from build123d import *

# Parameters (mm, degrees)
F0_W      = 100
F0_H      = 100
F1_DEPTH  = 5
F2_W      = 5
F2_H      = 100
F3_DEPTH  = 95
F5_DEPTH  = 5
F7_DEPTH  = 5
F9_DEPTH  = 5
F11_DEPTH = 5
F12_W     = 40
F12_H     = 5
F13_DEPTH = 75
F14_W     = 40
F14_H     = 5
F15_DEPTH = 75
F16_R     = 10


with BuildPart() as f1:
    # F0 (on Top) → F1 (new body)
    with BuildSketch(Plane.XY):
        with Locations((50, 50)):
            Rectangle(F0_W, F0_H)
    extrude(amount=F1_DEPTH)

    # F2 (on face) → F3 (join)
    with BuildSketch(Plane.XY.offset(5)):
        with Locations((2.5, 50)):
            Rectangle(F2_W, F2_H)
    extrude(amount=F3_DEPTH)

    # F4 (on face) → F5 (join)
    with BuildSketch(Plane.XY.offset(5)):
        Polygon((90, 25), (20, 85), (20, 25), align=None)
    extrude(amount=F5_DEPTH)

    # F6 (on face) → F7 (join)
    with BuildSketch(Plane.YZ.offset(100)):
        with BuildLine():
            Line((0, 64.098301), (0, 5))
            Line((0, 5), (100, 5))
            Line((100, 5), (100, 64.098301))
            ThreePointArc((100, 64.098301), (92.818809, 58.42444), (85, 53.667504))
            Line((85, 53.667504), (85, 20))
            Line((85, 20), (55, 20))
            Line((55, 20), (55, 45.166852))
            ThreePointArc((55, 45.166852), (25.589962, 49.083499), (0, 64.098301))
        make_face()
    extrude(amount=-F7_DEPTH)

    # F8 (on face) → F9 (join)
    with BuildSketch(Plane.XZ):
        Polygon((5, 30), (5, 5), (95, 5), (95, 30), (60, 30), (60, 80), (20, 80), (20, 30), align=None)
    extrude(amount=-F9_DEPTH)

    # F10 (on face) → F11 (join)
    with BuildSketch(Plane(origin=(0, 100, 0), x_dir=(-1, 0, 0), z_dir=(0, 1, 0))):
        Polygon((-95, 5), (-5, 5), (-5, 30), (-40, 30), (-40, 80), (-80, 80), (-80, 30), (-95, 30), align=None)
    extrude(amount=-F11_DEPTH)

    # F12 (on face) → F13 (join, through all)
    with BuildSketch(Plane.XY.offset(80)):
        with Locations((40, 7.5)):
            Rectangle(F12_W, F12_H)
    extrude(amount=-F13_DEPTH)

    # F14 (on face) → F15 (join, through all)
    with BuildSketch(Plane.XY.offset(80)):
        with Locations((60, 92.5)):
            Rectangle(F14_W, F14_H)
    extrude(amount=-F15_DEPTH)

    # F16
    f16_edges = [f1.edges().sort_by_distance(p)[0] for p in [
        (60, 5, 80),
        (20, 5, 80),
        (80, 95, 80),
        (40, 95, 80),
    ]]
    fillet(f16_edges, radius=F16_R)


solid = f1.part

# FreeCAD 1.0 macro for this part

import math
import FreeCAD as App
import Part
import Sketcher


def edges_at(feature, points):
    """Names of the edges that pass closest to the given points."""
    edges = feature.Shape.Edges
    near = lambda p: min(range(len(edges)), key=lambda i: edges[i].distToShape(Part.Vertex(*p))[0])
    return sorted({f"Edge{near(p) + 1}" for p in points})


def add_polygon(sketch, points):
    """Adds a closed chain of lines whose ends are joined by coincident constraints."""
    first, n = sketch.GeometryCount, len(points)
    for a, b in zip(points, points[1:] + points[:1]):
        sketch.addGeometry(Part.LineSegment(App.Vector(*a, 0), App.Vector(*b, 0)), False)
    for i in range(n):
        sketch.addConstraint(Sketcher.Constraint("Coincident", first + i, 2, first + (i + 1) % n, 1))

doc = App.newDocument("Part")
body = doc.addObject("PartDesign::Body", "Body")

# Sketch on XY plane
sketch1 = body.newObject("Sketcher::SketchObject", "Sketch")
sketch1.AttachmentSupport = (doc.getObject("XY_Plane"), [""])
sketch1.MapMode = "FlatFace"
add_polygon(sketch1, [(0, 100), (0, 0), (100, 0), (100, 100)])  # lines 0-3
sketch1.addConstraint([
    Sketcher.Constraint("Vertical", 0),
    Sketcher.Constraint("Horizontal", 1),
    Sketcher.Constraint("Vertical", 2),
    Sketcher.Constraint("Horizontal", 3),
    Sketcher.Constraint("Coincident", 0, 2, -1, 1),
    Sketcher.Constraint("Equal", 3, 0),
    Sketcher.Constraint("DistanceX", 1, 1, 1, 2, 100.0),
])
pad1 = body.newObject("PartDesign::Pad", "Pad")
pad1.Profile = sketch1
pad1.Length = 5

# Sketch on XY plane
sketch2 = body.newObject("Sketcher::SketchObject", "Sketch001")
sketch2.AttachmentSupport = (doc.getObject("XY_Plane"), [""])
sketch2.MapMode = "FlatFace"
sketch2.AttachmentOffset = App.Placement(App.Vector(0, 0, 5), App.Rotation())
add_polygon(sketch2, [(0, 100), (0, 0), (5, 0), (5, 100)])  # lines 0-3
sketch2.addConstraint([
    Sketcher.Constraint("Vertical", 0),
    Sketcher.Constraint("Horizontal", 1),
    Sketcher.Constraint("Vertical", 2),
    Sketcher.Constraint("Horizontal", 3),
    Sketcher.Constraint("Coincident", 0, 2, -1, 1),
    Sketcher.Constraint("DistanceX", 1, 1, 1, 2, 5.0),
    Sketcher.Constraint("DistanceY", 0, 2, 0, 1, 100.0),
])
pad2 = body.newObject("PartDesign::Pad", "Pad001")
pad2.Profile = sketch2
pad2.Length = 95

# Sketch on XY plane
sketch3 = body.newObject("Sketcher::SketchObject", "Sketch002")
sketch3.AttachmentSupport = (doc.getObject("XY_Plane"), [""])
sketch3.MapMode = "FlatFace"
sketch3.AttachmentOffset = App.Placement(App.Vector(0, 0, 5), App.Rotation())
add_polygon(sketch3, [(90, 25), (20, 85), (20, 25)])  # lines 0-2
sketch3.addConstraint([
    Sketcher.Constraint("Vertical", 1),
    Sketcher.Constraint("Horizontal", 2),
    Sketcher.Constraint("DistanceX", 2, 1, 2, 2, 70.0),
    Sketcher.Constraint("DistanceY", 1, 2, 1, 1, 60.0),
    Sketcher.Constraint("DistanceX", -1, 1, 0, 2, 20.0),
    Sketcher.Constraint("DistanceY", -1, 1, 0, 2, 85.0),
])
pad3 = body.newObject("PartDesign::Pad", "Pad002")
pad3.Profile = sketch3
pad3.Length = 5

# Sketch on YZ plane
sketch4 = body.newObject("Sketcher::SketchObject", "Sketch003")
sketch4.AttachmentSupport = (doc.getObject("YZ_Plane"), [""])
sketch4.MapMode = "FlatFace"
sketch4.AttachmentOffset = App.Placement(App.Vector(0, 0, 100), App.Rotation())
sketch4.addGeometry([
    Part.LineSegment(App.Vector(0, 64, 0), App.Vector(0, 5, 0)),  # 0
    Part.LineSegment(App.Vector(0, 5, 0), App.Vector(100, 5, 0)),  # 1
    Part.LineSegment(App.Vector(100, 5, 0), App.Vector(100, 64, 0)),  # 2
    Part.ArcOfCircle(Part.Circle(App.Vector(50, 120, 0), App.Vector(0, 0, 1), 75), math.radians(-62.18), math.radians(-48.19)),  # 3
    Part.LineSegment(App.Vector(85, 54, 0), App.Vector(85, 20, 0)),  # 4
    Part.LineSegment(App.Vector(85, 20, 0), App.Vector(55, 20, 0)),  # 5
    Part.LineSegment(App.Vector(55, 20, 0), App.Vector(55, 45, 0)),  # 6
    Part.ArcOfCircle(Part.Circle(App.Vector(50, 120, 0), App.Vector(0, 0, 1), 75), math.radians(-132), math.radians(-86)),  # 7
], False)
sketch4.addConstraint([
    Sketcher.Constraint("Coincident", 0, 2, 1, 1),
    Sketcher.Constraint("Coincident", 1, 2, 2, 1),
    Sketcher.Constraint("Coincident", 2, 2, 3, 2),
    Sketcher.Constraint("Coincident", 3, 1, 4, 1),
    Sketcher.Constraint("Coincident", 4, 2, 5, 1),
    Sketcher.Constraint("Coincident", 5, 2, 6, 1),
    Sketcher.Constraint("Coincident", 6, 2, 7, 2),
    Sketcher.Constraint("Coincident", 7, 1, 0, 1),
    Sketcher.Constraint("Vertical", 0),
    Sketcher.Constraint("Horizontal", 1),
    Sketcher.Constraint("Vertical", 2),
    Sketcher.Constraint("Vertical", 4),
    Sketcher.Constraint("Horizontal", 5),
    Sketcher.Constraint("Vertical", 6),
    Sketcher.Constraint("Coincident", 7, 3, 3, 3),
    Sketcher.Constraint("Equal", 3, 7),
    Sketcher.Constraint("PointOnObject", 0, 2, -2),
    Sketcher.Constraint("Horizontal", 2, 2, 7, 1),
    Sketcher.Constraint("DistanceX", 1, 1, 1, 2, 100.0),
    Sketcher.Constraint("DistanceX", 5, 2, 5, 1, 30.0),
    Sketcher.Constraint("DistanceY", -1, 1, 0, 2, 5.0),
    Sketcher.Constraint("DistanceX", -1, 1, 3, 1, 85.0),
    Sketcher.Constraint("DistanceY", -1, 1, 4, 2, 20.0),
    Sketcher.Constraint("DistanceY", 0, 2, 0, 1, 59.098301),
    Sketcher.Constraint("Radius", 3, 74.999995),
])
pad4 = body.newObject("PartDesign::Pad", "Pad003")
pad4.Profile = sketch4
pad4.Length = 5
pad4.Reversed = True

# Sketch on XZ plane
sketch5 = body.newObject("Sketcher::SketchObject", "Sketch004")
sketch5.AttachmentSupport = (doc.getObject("XZ_Plane"), [""])
sketch5.MapMode = "FlatFace"
add_polygon(sketch5, [(5, 30), (5, 5), (95, 5), (95, 30), (60, 30), (60, 80), (20, 80), (20, 30)])  # lines 0-7
sketch5.addConstraint([
    Sketcher.Constraint("Vertical", 0),
    Sketcher.Constraint("Horizontal", 1),
    Sketcher.Constraint("Vertical", 2),
    Sketcher.Constraint("Horizontal", 3),
    Sketcher.Constraint("Vertical", 4),
    Sketcher.Constraint("Horizontal", 5),
    Sketcher.Constraint("Vertical", 6),
    Sketcher.Constraint("Horizontal", 7),
    Sketcher.Constraint("Horizontal", 3, 2, 6, 2),
    Sketcher.Constraint("DistanceX", 1, 1, 1, 2, 90.0),
    Sketcher.Constraint("DistanceX", 3, 2, 3, 1, 35.0),
    Sketcher.Constraint("DistanceX", 5, 2, 5, 1, 40.0),
    Sketcher.Constraint("DistanceY", 0, 2, 0, 1, 25.0),
    Sketcher.Constraint("DistanceY", 4, 1, 4, 2, 50.0),
    Sketcher.Constraint("DistanceX", -1, 1, 0, 2, 5.0),
    Sketcher.Constraint("DistanceY", -1, 1, 0, 2, 5.0),
])
pad5 = body.newObject("PartDesign::Pad", "Pad004")
pad5.Profile = sketch5
pad5.Length = 5
pad5.Reversed = True

# Sketch on XZ plane
sketch6 = body.newObject("Sketcher::SketchObject", "Sketch005")
sketch6.AttachmentSupport = (doc.getObject("XZ_Plane"), [""])
sketch6.MapMode = "FlatFace"
sketch6.AttachmentOffset = App.Placement(App.Vector(0, 0, -100), App.Rotation())
add_polygon(sketch6, [(95, 5), (5, 5), (5, 30), (40, 30), (40, 80), (80, 80), (80, 30), (95, 30)])  # lines 0-7
sketch6.addConstraint([
    Sketcher.Constraint("Horizontal", 0),
    Sketcher.Constraint("Vertical", 1),
    Sketcher.Constraint("Horizontal", 2),
    Sketcher.Constraint("Vertical", 3),
    Sketcher.Constraint("Horizontal", 4),
    Sketcher.Constraint("Vertical", 5),
    Sketcher.Constraint("Horizontal", 6),
    Sketcher.Constraint("Vertical", 7),
    Sketcher.Constraint("Horizontal", 2, 2, 5, 2),
    Sketcher.Constraint("DistanceX", 0, 2, 0, 1, 90.0),
    Sketcher.Constraint("DistanceX", 2, 1, 2, 2, 35.0),
    Sketcher.Constraint("DistanceX", 4, 1, 4, 2, 40.0),
    Sketcher.Constraint("DistanceY", 1, 1, 1, 2, 25.0),
    Sketcher.Constraint("DistanceY", 3, 1, 3, 2, 50.0),
    Sketcher.Constraint("DistanceX", -1, 1, 0, 2, 5.0),
    Sketcher.Constraint("DistanceY", -1, 1, 0, 2, 5.0),
])
pad6 = body.newObject("PartDesign::Pad", "Pad005")
pad6.Profile = sketch6
pad6.Length = 5

# Sketch on XY plane
sketch7 = body.newObject("Sketcher::SketchObject", "Sketch006")
sketch7.AttachmentSupport = (doc.getObject("XY_Plane"), [""])
sketch7.MapMode = "FlatFace"
sketch7.AttachmentOffset = App.Placement(App.Vector(0, 0, 80), App.Rotation())
add_polygon(sketch7, [(20, 10), (20, 5), (60, 5), (60, 10)])  # lines 0-3
sketch7.addConstraint([
    Sketcher.Constraint("Vertical", 0),
    Sketcher.Constraint("Horizontal", 1),
    Sketcher.Constraint("Vertical", 2),
    Sketcher.Constraint("Horizontal", 3),
    Sketcher.Constraint("DistanceX", 1, 1, 1, 2, 40.0),
    Sketcher.Constraint("DistanceY", 0, 2, 0, 1, 5.0),
    Sketcher.Constraint("DistanceX", -1, 1, 0, 2, 20.0),
    Sketcher.Constraint("DistanceY", -1, 1, 0, 2, 5.0),
])
pad7 = body.newObject("PartDesign::Pad", "Pad006")
pad7.Profile = sketch7
pad7.Type = "UpToLast"
pad7.Reversed = True

# Sketch on XY plane
sketch8 = body.newObject("Sketcher::SketchObject", "Sketch007")
sketch8.AttachmentSupport = (doc.getObject("XY_Plane"), [""])
sketch8.MapMode = "FlatFace"
sketch8.AttachmentOffset = App.Placement(App.Vector(0, 0, 80), App.Rotation())
add_polygon(sketch8, [(40, 95), (40, 90), (80, 90), (80, 95)])  # lines 0-3
sketch8.addConstraint([
    Sketcher.Constraint("Vertical", 0),
    Sketcher.Constraint("Horizontal", 1),
    Sketcher.Constraint("Vertical", 2),
    Sketcher.Constraint("Horizontal", 3),
    Sketcher.Constraint("DistanceX", 1, 1, 1, 2, 40.0),
    Sketcher.Constraint("DistanceY", 0, 2, 0, 1, 5.0),
    Sketcher.Constraint("DistanceX", -1, 1, 0, 2, 40.0),
    Sketcher.Constraint("DistanceY", -1, 1, 0, 2, 90.0),
])
pad8 = body.newObject("PartDesign::Pad", "Pad007")
pad8.Profile = sketch8
pad8.Type = "UpToLast"
pad8.Reversed = True
doc.recompute()

fillet = body.newObject("PartDesign::Fillet", "Fillet")
fillet.Base = (pad8, edges_at(pad8, [
    (60, 5, 80),
    (20, 5, 80),
    (80, 95, 80),
    (40, 95, 80),
]))
fillet.Radius = 10

doc.recompute()
